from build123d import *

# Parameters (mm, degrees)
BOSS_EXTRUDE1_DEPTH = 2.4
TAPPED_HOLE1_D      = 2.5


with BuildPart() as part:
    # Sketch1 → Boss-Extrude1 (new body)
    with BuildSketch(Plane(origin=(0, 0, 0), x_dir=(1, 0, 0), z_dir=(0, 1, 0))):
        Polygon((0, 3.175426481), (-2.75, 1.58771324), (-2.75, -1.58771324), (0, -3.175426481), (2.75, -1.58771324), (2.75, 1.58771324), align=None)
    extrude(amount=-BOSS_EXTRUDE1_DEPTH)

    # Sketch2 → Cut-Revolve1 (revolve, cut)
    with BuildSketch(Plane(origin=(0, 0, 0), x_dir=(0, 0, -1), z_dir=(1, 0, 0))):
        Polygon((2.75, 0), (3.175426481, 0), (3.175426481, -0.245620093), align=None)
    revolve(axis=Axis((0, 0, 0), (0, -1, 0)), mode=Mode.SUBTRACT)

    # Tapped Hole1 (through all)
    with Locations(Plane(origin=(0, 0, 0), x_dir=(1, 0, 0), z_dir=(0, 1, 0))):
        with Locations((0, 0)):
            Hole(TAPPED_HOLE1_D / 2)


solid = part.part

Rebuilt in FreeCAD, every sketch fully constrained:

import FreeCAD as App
import Part
import Sketcher

V = App.Vector
Q = App.Units.Quantity


def add_polygon(sketch, points):
    """Adds a closed chain of lines whose ends are joined by coincident constraints."""
    first, n = sketch.GeometryCount, len(points)
    for a, b in zip(points, points[1:] + points[:1]):
        sketch.addGeometry(Part.LineSegment(App.Vector(*a, 0), App.Vector(*b, 0)), False)
    for i in range(n):
        sketch.addConstraint(Sketcher.Constraint("Coincident", first + i, 2, first + (i + 1) % n, 1))

doc = App.newDocument("Part")
body = doc.addObject("PartDesign::Body", "Body")

# Sketch on XZ plane
sketch1 = body.newObject("Sketcher::SketchObject", "Sketch")
sketch1.AttachmentSupport = (doc.getObject("XZ_Plane"), [""])
sketch1.MapMode = "FlatFace"
add_polygon(sketch1, [(0, -3.2), (-2.8, -1.6), (-2.8, 1.6), (0, 3.2), (2.8, 1.6), (2.8, -1.6)])  # lines 0-5
sketch1.addConstraint([
    Sketcher.Constraint("Vertical", 1),
    Sketcher.Constraint("Vertical", 4),
    Sketcher.Constraint("Symmetric", 0, 2, 3, 2, -1, 1),
    Sketcher.Constraint("Symmetric", 2, 2, 5, 2, -1, 1),
    Sketcher.Constraint("PointOnObject", 2, 2, -2),
    Sketcher.Constraint("Parallel", 2, 5),
    Sketcher.Constraint("Horizontal", 1, 2, 3, 2),
    Sketcher.Constraint("Angle", 0, Q("150 deg")),
    Sketcher.Constraint("DistanceX", 1, 2, 3, 2, Q("5.5 mm")),
    Sketcher.Constraint("DistanceY", 1, 1, 1, 2, Q("3.175426 mm")),
])
pad1 = body.newObject("PartDesign::Pad", "Pad")
pad1.Profile = sketch1
pad1.Length = 2.4

# Sketch on YZ plane
sketch2 = body.newObject("Sketcher::SketchObject", "Sketch001")
sketch2.AttachmentSupport = (doc.getObject("YZ_Plane"), [""])
sketch2.MapMode = "FlatFace"
add_polygon(sketch2, [(0, -3.18), (0, -2.75), (-0.25, -3.18)])  # lines 0-2
sketch2.addConstraint([
    Sketcher.Constraint("Vertical", 0),
    Sketcher.Constraint("Horizontal", 2),
    Sketcher.Constraint("PointOnObject", 0, 2, -2),
    Sketcher.Constraint("Angle", 1, Q("-120 deg")),
    Sketcher.Constraint("DistanceY", 0, 2, -1, 1, Q("2.75 mm")),
    Sketcher.Constraint("DistanceX", 2, 1, 2, 2, Q("0.24562 mm")),
])
groove = body.newObject("PartDesign::Groove", "Groove")
groove.Profile = sketch2
groove.ReferenceAxis = (sketch2, ["H_Axis"])
groove.Angle = 360

# Sketch on XZ plane
sketch3 = body.newObject("Sketcher::SketchObject", "Sketch002")
sketch3.AttachmentSupport = (doc.getObject("XZ_Plane"), [""])
sketch3.MapMode = "FlatFace"
sketch3.addGeometry(Part.Circle(V(0, 0, 0), V(0, 0, 1), 1.2), False)
sketch3.addConstraint([
    Sketcher.Constraint("Coincident", 0, 3, -1, 1),
    Sketcher.Constraint("Diameter", 0, Q("2.5 mm")),
])
doc.recompute()
hole = body.newObject("PartDesign::Hole", "Hole")
hole.Profile = sketch3
hole.ThreadType = "None"
hole.Diameter = 2.5
hole.DepthType = "ThroughAll"
hole.Reversed = True

doc.recompute()
